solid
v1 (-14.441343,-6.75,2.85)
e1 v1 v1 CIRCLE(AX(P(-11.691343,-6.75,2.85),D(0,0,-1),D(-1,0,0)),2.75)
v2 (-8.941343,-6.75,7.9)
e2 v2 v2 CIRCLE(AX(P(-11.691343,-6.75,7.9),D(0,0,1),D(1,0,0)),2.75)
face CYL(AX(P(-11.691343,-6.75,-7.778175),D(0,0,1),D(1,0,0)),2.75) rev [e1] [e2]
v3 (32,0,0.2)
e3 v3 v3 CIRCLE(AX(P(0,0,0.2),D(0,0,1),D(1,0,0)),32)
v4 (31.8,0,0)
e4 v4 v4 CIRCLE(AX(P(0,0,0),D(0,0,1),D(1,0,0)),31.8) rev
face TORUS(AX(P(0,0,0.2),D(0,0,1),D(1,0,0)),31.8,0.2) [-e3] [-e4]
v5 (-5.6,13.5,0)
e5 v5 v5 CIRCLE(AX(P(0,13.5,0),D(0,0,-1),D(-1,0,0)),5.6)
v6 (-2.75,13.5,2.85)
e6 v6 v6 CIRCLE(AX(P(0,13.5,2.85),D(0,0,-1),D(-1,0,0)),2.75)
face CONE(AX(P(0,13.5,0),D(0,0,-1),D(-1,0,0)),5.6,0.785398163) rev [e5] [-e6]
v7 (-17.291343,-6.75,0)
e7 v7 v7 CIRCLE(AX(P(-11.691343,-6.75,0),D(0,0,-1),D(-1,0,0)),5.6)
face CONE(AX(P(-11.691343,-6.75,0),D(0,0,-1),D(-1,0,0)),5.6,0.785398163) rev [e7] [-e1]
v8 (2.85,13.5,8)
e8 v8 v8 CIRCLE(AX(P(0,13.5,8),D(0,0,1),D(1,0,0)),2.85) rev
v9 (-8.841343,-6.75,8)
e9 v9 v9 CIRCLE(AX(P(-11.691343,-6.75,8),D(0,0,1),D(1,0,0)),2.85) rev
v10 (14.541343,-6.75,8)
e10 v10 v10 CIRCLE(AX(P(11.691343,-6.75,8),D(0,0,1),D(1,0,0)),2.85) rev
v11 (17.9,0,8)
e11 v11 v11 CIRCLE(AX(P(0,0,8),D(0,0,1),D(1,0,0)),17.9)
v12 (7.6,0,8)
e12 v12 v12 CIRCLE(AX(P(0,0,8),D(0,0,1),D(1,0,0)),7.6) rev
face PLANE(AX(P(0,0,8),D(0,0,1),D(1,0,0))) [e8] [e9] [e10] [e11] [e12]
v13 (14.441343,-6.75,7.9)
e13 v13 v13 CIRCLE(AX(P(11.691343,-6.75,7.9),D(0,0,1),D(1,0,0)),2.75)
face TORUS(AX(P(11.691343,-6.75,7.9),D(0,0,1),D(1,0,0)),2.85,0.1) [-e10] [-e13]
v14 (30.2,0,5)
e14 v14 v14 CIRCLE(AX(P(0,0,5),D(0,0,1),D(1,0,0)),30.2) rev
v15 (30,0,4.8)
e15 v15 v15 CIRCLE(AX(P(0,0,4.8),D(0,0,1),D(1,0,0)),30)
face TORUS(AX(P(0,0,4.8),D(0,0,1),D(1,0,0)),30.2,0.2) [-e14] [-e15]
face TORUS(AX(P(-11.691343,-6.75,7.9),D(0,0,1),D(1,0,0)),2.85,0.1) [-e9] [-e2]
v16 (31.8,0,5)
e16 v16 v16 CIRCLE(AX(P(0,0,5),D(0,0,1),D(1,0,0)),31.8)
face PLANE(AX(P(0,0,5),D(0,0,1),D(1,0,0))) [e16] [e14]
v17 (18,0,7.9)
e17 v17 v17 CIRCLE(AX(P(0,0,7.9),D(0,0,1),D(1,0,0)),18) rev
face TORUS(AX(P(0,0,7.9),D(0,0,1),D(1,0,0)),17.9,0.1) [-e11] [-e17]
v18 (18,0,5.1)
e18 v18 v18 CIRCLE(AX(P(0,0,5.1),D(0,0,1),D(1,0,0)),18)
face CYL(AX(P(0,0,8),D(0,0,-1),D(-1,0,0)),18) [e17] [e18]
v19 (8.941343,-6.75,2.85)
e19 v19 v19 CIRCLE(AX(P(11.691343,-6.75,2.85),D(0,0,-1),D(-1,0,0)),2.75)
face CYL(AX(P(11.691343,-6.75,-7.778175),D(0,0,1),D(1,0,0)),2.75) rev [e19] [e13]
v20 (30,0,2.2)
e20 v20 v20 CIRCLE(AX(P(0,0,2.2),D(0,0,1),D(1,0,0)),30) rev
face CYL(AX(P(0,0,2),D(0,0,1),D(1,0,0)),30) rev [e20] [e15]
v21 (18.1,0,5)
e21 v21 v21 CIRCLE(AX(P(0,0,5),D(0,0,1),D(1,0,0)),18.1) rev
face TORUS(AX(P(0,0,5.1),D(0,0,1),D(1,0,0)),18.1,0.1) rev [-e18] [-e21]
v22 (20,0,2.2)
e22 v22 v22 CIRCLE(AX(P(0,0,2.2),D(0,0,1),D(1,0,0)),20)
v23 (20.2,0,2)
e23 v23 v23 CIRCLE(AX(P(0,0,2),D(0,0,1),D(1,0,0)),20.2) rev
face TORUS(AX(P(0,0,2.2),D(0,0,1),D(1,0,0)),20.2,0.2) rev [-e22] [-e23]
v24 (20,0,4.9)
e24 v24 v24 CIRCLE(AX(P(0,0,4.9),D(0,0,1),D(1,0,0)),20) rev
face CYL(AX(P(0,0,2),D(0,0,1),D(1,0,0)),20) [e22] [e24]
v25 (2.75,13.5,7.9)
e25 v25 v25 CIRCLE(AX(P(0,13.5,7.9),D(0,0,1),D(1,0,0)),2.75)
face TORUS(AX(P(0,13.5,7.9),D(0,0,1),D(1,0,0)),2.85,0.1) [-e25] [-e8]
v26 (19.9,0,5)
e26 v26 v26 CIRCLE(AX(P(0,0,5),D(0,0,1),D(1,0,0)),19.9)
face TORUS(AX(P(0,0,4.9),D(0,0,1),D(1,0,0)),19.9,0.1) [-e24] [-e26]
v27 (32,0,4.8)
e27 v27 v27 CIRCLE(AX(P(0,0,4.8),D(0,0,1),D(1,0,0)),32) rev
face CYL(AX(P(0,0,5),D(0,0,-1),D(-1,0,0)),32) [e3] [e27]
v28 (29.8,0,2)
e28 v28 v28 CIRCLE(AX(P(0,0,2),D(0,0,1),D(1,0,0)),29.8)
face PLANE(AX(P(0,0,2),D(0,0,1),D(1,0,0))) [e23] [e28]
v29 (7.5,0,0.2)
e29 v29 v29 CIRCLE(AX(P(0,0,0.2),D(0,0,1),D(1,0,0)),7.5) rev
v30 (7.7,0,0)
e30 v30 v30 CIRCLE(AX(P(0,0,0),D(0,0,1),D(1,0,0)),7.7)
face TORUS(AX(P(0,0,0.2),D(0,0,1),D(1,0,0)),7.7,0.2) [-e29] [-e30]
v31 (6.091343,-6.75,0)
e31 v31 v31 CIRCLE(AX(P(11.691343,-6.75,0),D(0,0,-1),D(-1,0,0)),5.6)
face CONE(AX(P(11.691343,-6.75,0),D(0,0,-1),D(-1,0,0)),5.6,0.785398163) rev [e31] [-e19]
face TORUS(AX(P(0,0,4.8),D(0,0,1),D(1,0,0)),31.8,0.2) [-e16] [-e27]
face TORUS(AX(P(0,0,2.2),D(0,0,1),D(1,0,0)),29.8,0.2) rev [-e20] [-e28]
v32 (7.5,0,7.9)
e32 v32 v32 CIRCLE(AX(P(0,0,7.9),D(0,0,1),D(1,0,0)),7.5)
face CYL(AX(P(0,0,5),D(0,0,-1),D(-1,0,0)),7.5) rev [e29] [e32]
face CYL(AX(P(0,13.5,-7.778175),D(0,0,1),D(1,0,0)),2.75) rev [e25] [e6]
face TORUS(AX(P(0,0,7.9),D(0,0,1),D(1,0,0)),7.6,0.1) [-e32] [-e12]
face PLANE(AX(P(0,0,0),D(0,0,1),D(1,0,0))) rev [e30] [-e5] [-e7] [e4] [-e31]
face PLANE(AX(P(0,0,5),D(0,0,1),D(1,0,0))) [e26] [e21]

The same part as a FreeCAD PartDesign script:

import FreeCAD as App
import Part
import Sketcher
Q = App.Units.Quantity


def edges_at(feature, points):
    """Names of the edges that pass closest to the given points."""
    edges = feature.Shape.Edges
    near = lambda p: min(range(len(edges)), key=lambda i: edges[i].distToShape(Part.Vertex(*p))[0])
    return sorted({f"Edge{near(p) + 1}" for p in points})

doc = App.newDocument("Part")
params = doc.addObject("Spreadsheet::Sheet", "Params")
for row, (alias, value) in enumerate([
    ("sketch1_diameter", "64 mm"),
    ("sketch1_diameter2", "15 mm"),
    ("pad1_length", "5 mm"),
    ("sketch2_diameter", "60 mm"),
    ("sketch2_diameter2", "40 mm"),
    ("pocket1_length", "3 mm"),
    ("fillet_radius", "0.2 mm"),
    ("sketch3_diameter", "36 mm"),
    ("sketch3_diameter2", "15 mm"),
    ("pad2_length", "3 mm"),
    ("sketch4_diameter", "5.5 mm"),
    ("pocket2_length", "8 mm"),
    ("sketch5_diameter", "5.5 mm"),
    ("hole_diameter", "5.5 mm"),
    ("hole_csink_diameter", "11.2 mm"),
    ("fillet2_radius", "0.1 mm"),
], start=1):
    params.set(f"A{row}", alias)
    params.set(f"B{row}", "=" + value)
    params.setAlias(f"B{row}", alias)

body = doc.addObject("PartDesign::Body", "Body")

sketch1 = body.newObject("Sketcher::SketchObject", "Sketch")
sketch1.AttachmentSupport = (doc.getObject("XY_Plane"), [""])
sketch1.MapMode = "FlatFace"
sketch1.addGeometry(Part.Circle(App.Vector(0, 0, 0), App.Vector(0, 0, 1), 32), False)
sketch1.addGeometry(Part.Circle(App.Vector(0, 0, 0), App.Vector(0, 0, 1), 8), False)
sketch1.addConstraint(Sketcher.Constraint("Coincident", 0, 3, -1, 1))
sketch1.addConstraint(Sketcher.Constraint("Coincident", 1, 3, -1, 1))
sketch1.addConstraint(Sketcher.Constraint("Diameter", 0, Q("64 mm")))
sketch1.addConstraint(Sketcher.Constraint("Diameter", 1, Q("15 mm")))
sketch1.setExpression("Constraints[2]", "Params.sketch1_diameter")
sketch1.setExpression("Constraints[3]", "Params.sketch1_diameter2")
pad1 = body.newObject("PartDesign::Pad", "Pad")
pad1.Profile = sketch1
pad1.setExpression("Length", "Params.pad1_length")

sketch2 = body.newObject("Sketcher::SketchObject", "Sketch001")
sketch2.AttachmentSupport = (doc.getObject("XY_Plane"), [""])
sketch2.MapMode = "FlatFace"
sketch2.AttachmentOffset = App.Placement(App.Vector(0, 0, 5), App.Rotation())
sketch2.addGeometry(Part.Circle(App.Vector(0, 0, 0), App.Vector(0, 0, 1), 30), False)
sketch2.addGeometry(Part.Circle(App.Vector(0, 0, 0), App.Vector(0, 0, 1), 20), False)
sketch2.addConstraint(Sketcher.Constraint("Coincident", 0, 3, -1, 1))
sketch2.addConstraint(Sketcher.Constraint("Coincident", 1, 3, -1, 1))
sketch2.addConstraint(Sketcher.Constraint("Diameter", 0, Q("60 mm")))
sketch2.addConstraint(Sketcher.Constraint("Diameter", 1, Q("40 mm")))
sketch2.setExpression("Constraints[2]", "Params.sketch2_diameter")
sketch2.setExpression("Constraints[3]", "Params.sketch2_diameter2")
pocket1 = body.newObject("PartDesign::Pocket", "Pocket")
pocket1.Profile = sketch2
pocket1.setExpression("Length", "Params.pocket1_length")
doc.recompute()

fillet = body.newObject("PartDesign::Fillet", "Fillet")
fillet.Base = (pocket1, edges_at(pocket1, [
    (-30, 0, 2),
    (-20, 0, 2),
    (-30, 0, 5),
    (-32, 0, 0),
    (-32, 0, 5),
    (-7.5, 0, 0),
]))
fillet.setExpression("Radius", "Params.fillet_radius")

sketch3 = body.newObject("Sketcher::SketchObject", "Sketch002")
sketch3.AttachmentSupport = (doc.getObject("XY_Plane"), [""])
sketch3.MapMode = "FlatFace"
sketch3.AttachmentOffset = App.Placement(App.Vector(0, 0, 5), App.Rotation())
sketch3.addGeometry(Part.Circle(App.Vector(0, 0, 0), App.Vector(0, 0, 1), 18), False)
sketch3.addGeometry(Part.Circle(App.Vector(0, 0, 0), App.Vector(0, 0, 1), 8), False)
sketch3.addConstraint(Sketcher.Constraint("Coincident", 0, 3, -1, 1))
sketch3.addConstraint(Sketcher.Constraint("Coincident", 1, 3, -1, 1))
sketch3.addConstraint(Sketcher.Constraint("Diameter", 0, Q("36 mm")))
sketch3.addConstraint(Sketcher.Constraint("Diameter", 1, Q("15 mm")))
sketch3.setExpression("Constraints[2]", "Params.sketch3_diameter")
sketch3.setExpression("Constraints[3]", "Params.sketch3_diameter2")
pad2 = body.newObject("PartDesign::Pad", "Pad001")
pad2.Profile = sketch3
pad2.setExpression("Length", "Params.pad2_length")

sketch4 = body.newObject("Sketcher::SketchObject", "Sketch003")
sketch4.AttachmentSupport = (doc.getObject("XY_Plane"), [""])
sketch4.MapMode = "FlatFace"
sketch4.AttachmentOffset = App.Placement(App.Vector(0, 0, 8), App.Rotation())
sketch4.addGeometry(Part.Circle(App.Vector(0, 13.5, 0), App.Vector(0, 0, 1), 2.8), False)
sketch4.addGeometry(Part.Circle(App.Vector(11.7, -6.8, 0), App.Vector(0, 0, 1), 2.8), False)
sketch4.addGeometry(Part.Circle(App.Vector(-11.7, -6.8, 0), App.Vector(0, 0, 1), 2.8), False)
sketch4.addConstraint(Sketcher.Constraint("Equal", 0, 1))
sketch4.addConstraint(Sketcher.Constraint("Equal", 1, 2))
sketch4.addConstraint(Sketcher.Constraint("Symmetric", 1, 3, 2, 3, -2))
sketch4.addConstraint(Sketcher.Constraint("PointOnObject", 0, 3, -2))
sketch4.addConstraint(Sketcher.Constraint("Diameter", 0, Q("5.5 mm")))
sketch4.addConstraint(Sketcher.Constraint("DistanceY", -1, 1, 0, 3, Q("13.5 mm")))
sketch4.addConstraint(Sketcher.Constraint("DistanceY", 1, 3, -1, 1, Q("6.75 mm")))
sketch4.addConstraint(Sketcher.Constraint("DistanceX", -1, 1, 1, 3, Q("11.691343 mm")))
sketch4.setExpression("Constraints[4]", "Params.sketch4_diameter")
pocket2 = body.newObject("PartDesign::Pocket", "Pocket001")
pocket2.Profile = sketch4
pocket2.setExpression("Length", "Params.pocket2_length")

sketch5 = body.newObject("Sketcher::SketchObject", "Sketch004")
sketch5.AttachmentSupport = (doc.getObject("XY_Plane"), [""])
sketch5.MapMode = "FlatFace"
sketch5.addGeometry(Part.Circle(App.Vector(11.7, -6.8, 0), App.Vector(0, 0, 1), 2.8), False)
sketch5.addGeometry(Part.Circle(App.Vector(-11.7, -6.8, 0), App.Vector(0, 0, 1), 2.8), False)
sketch5.addGeometry(Part.Circle(App.Vector(0, 13.5, 0), App.Vector(0, 0, 1), 2.8), False)
sketch5.addConstraint(Sketcher.Constraint("Equal", 0, 1))
sketch5.addConstraint(Sketcher.Constraint("Equal", 1, 2))
sketch5.addConstraint(Sketcher.Constraint("Symmetric", 0, 3, 1, 3, -2))
sketch5.addConstraint(Sketcher.Constraint("PointOnObject", 2, 3, -2))
sketch5.addConstraint(Sketcher.Constraint("Diameter", 0, Q("5.5 mm")))
sketch5.addConstraint(Sketcher.Constraint("DistanceY", -1, 1, 2, 3, Q("13.5 mm")))
sketch5.addConstraint(Sketcher.Constraint("DistanceY", 0, 3, -1, 1, Q("6.75 mm")))
sketch5.addConstraint(Sketcher.Constraint("DistanceX", -1, 1, 0, 3, Q("11.691343 mm")))
sketch5.setExpression("Constraints[4]", "Params.sketch5_diameter")
doc.recompute()
hole = body.newObject("PartDesign::Hole", "Hole")
hole.Profile = sketch5
hole.ThreadType = "None"
hole.setExpression("Diameter", "Params.hole_diameter")
hole.DepthType = "ThroughAll"
hole.HoleCutType = "Countersink"
hole.setExpression("HoleCutDiameter", "Params.hole_csink_diameter")
hole.HoleCutCountersinkAngle = 90
hole.Reversed = True
doc.recompute()

fillet2 = body.newObject("PartDesign::Fillet", "Fillet001")
fillet2.Base = (hole, edges_at(hole, [
    (-20, 0, 5),
    (-18, 0, 8),
    (-18, 0, 5),
    (-7.5, 0, 8),
    (-2.75, 13.5, 8),
    (-14.441, -6.75, 8),
    (8.941, -6.75, 8),
]))
fillet2.setExpression("Radius", "Params.fillet2_radius")

doc.recompute()
